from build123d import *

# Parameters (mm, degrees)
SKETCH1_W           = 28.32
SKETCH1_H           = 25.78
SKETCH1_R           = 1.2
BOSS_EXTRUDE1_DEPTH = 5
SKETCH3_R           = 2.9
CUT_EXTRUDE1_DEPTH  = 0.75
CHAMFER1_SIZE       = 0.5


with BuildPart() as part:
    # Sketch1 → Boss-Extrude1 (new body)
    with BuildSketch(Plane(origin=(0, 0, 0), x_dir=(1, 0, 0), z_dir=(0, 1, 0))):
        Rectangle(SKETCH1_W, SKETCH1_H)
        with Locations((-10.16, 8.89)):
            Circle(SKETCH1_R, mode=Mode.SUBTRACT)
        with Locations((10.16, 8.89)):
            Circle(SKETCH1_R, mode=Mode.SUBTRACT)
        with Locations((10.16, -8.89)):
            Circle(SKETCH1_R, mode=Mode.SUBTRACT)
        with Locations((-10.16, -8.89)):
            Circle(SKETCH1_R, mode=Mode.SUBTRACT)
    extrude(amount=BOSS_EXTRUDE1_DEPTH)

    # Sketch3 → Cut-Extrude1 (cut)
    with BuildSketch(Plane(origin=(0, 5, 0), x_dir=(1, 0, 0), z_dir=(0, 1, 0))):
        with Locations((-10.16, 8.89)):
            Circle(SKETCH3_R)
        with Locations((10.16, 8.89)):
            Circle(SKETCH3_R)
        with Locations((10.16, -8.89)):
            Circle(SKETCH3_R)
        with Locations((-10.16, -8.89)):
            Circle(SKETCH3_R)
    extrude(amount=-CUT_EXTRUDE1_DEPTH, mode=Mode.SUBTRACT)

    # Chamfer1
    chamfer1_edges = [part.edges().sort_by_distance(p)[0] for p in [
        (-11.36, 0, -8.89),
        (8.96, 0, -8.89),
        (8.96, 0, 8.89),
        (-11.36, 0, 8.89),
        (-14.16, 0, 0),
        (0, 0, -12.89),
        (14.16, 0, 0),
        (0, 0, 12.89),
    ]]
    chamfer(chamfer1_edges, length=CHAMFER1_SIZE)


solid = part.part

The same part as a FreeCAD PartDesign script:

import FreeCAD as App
import Part
import Sketcher


def edges_at(feature, points):
    """Names of the edges that pass closest to the given points."""
    edges = feature.Shape.Edges
    near = lambda p: min(range(len(edges)), key=lambda i: edges[i].distToShape(Part.Vertex(*p))[0])
    return sorted({f"Edge{near(p) + 1}" for p in points})

doc = App.newDocument("Part")
body = doc.addObject("PartDesign::Body", "Body")

sketch1 = body.newObject("Sketcher::SketchObject", "Sketch")
sketch1.AttachmentSupport = (doc.getObject("XZ_Plane"), [""])
sketch1.MapMode = "FlatFace"
sketch1.addGeometry(Part.LineSegment(App.Vector(-14.16, -12.89, 0), App.Vector(-14.16, 12.89, 0)), False)
sketch1.addGeometry(Part.LineSegment(App.Vector(-14.16, 12.89, 0), App.Vector(14.16, 12.89, 0)), False)
sketch1.addGeometry(Part.LineSegment(App.Vector(14.16, 12.89, 0), App.Vector(14.16, -12.89, 0)), False)
sketch1.addGeometry(Part.LineSegment(App.Vector(14.16, -12.89, 0), App.Vector(-14.16, -12.89, 0)), False)
sketch1.addGeometry(Part.Circle(App.Vector(-10.16, 8.89, 0), App.Vector(0, 0, 1), 1.2), False)
sketch1.addGeometry(Part.Circle(App.Vector(10.16, 8.89, 0), App.Vector(0, 0, 1), 1.2), False)
sketch1.addGeometry(Part.Circle(App.Vector(-10.16, -8.89, 0), App.Vector(0, 0, 1), 1.2), False)
sketch1.addGeometry(Part.Circle(App.Vector(10.16, -8.89, 0), App.Vector(0, 0, 1), 1.2), False)
sketch1.addConstraint(Sketcher.Constraint("Coincident", 0, 2, 1, 1))
sketch1.addConstraint(Sketcher.Constraint("Coincident", 1, 2, 2, 1))
sketch1.addConstraint(Sketcher.Constraint("Coincident", 2, 2, 3, 1))
sketch1.addConstraint(Sketcher.Constraint("Coincident", 3, 2, 0, 1))
sketch1.addConstraint(Sketcher.Constraint("Vertical", 0))
sketch1.addConstraint(Sketcher.Constraint("Horizontal", 1))
sketch1.addConstraint(Sketcher.Constraint("Vertical", 2))
sketch1.addConstraint(Sketcher.Constraint("Horizontal", 3))
sketch1.addConstraint(Sketcher.Constraint("Equal", 4, 5))
sketch1.addConstraint(Sketcher.Constraint("Equal", 5, 6))
sketch1.addConstraint(Sketcher.Constraint("Equal", 6, 7))
sketch1.addConstraint(Sketcher.Constraint("Symmetric", 5, 3, 6, 3, -1, 1))
sketch1.addConstraint(Sketcher.Constraint("Symmetric", 4, 3, 7, 3, -1, 1))
sketch1.addConstraint(Sketcher.Constraint("Symmetric", 0, 2, 2, 2, -1, 1))
sketch1.addConstraint(Sketcher.Constraint("Symmetric", 4, 3, 5, 3, -2))
sketch1.addConstraint(Sketcher.Constraint("Diameter", 4, 2.4))
sketch1.addConstraint(Sketcher.Constraint("DistanceX", 0, 2, 4, 3, 4.0))
sketch1.addConstraint(Sketcher.Constraint("DistanceY", 4, 3, 0, 2, 4.0))
sketch1.addConstraint(Sketcher.Constraint("DistanceX", 1, 1, 1, 2, 28.32))
sketch1.addConstraint(Sketcher.Constraint("DistanceY", 0, 1, 0, 2, 25.78))
pad1 = body.newObject("PartDesign::Pad", "Pad")
pad1.Profile = sketch1
pad1.Length = 5
pad1.Reversed = True

sketch2 = body.newObject("Sketcher::SketchObject", "Sketch001")
sketch2.AttachmentSupport = (doc.getObject("XZ_Plane"), [""])
sketch2.MapMode = "FlatFace"
sketch2.AttachmentOffset = App.Placement(App.Vector(0, 0, -5), App.Rotation())
sketch2.addGeometry(Part.Circle(App.Vector(-10.16, -8.89, 0), App.Vector(0, 0, 1), 2.9), False)
sketch2.addGeometry(Part.Circle(App.Vector(10.16, -8.89, 0), App.Vector(0, 0, 1), 2.9), False)
sketch2.addGeometry(Part.Circle(App.Vector(10.16, 8.89, 0), App.Vector(0, 0, 1), 2.9), False)
sketch2.addGeometry(Part.Circle(App.Vector(-10.16, 8.89, 0), App.Vector(0, 0, 1), 2.9), False)
sketch2.addConstraint(Sketcher.Constraint("Equal", 0, 1))
sketch2.addConstraint(Sketcher.Constraint("Equal", 1, 2))
sketch2.addConstraint(Sketcher.Constraint("Equal", 2, 3))
sketch2.addConstraint(Sketcher.Constraint("Symmetric", 0, 3, 2, 3, -1, 1))
sketch2.addConstraint(Sketcher.Constraint("Symmetric", 1, 3, 3, 3, -1, 1))
sketch2.addConstraint(Sketcher.Constraint("Symmetric", 0, 3, 1, 3, -2))
sketch2.addConstraint(Sketcher.Constraint("Diameter", 0, 5.8))
sketch2.addConstraint(Sketcher.Constraint("DistanceX", 0, 3, -1, 1, 10.16))
sketch2.addConstraint(Sketcher.Constraint("DistanceY", 0, 3, -1, 1, 8.89))
pocket1 = body.newObject("PartDesign::Pocket", "Pocket")
pocket1.Profile = sketch2
pocket1.Length = 0.75
pocket1.Reversed = True
doc.recompute()

chamfer = body.newObject("PartDesign::Chamfer", "Chamfer")
chamfer.Base = (pocket1, edges_at(pocket1, [
    (-11.36, 0, -8.89),
    (8.96, 0, -8.89),
    (8.96, 0, 8.89),
    (-11.36, 0, 8.89),
    (-14.16, 0, 0),
    (0, 0, -12.89),
    (14.16, 0, 0),
    (0, 0, 12.89),
]))
chamfer.Size = 0.5

doc.recompute()
